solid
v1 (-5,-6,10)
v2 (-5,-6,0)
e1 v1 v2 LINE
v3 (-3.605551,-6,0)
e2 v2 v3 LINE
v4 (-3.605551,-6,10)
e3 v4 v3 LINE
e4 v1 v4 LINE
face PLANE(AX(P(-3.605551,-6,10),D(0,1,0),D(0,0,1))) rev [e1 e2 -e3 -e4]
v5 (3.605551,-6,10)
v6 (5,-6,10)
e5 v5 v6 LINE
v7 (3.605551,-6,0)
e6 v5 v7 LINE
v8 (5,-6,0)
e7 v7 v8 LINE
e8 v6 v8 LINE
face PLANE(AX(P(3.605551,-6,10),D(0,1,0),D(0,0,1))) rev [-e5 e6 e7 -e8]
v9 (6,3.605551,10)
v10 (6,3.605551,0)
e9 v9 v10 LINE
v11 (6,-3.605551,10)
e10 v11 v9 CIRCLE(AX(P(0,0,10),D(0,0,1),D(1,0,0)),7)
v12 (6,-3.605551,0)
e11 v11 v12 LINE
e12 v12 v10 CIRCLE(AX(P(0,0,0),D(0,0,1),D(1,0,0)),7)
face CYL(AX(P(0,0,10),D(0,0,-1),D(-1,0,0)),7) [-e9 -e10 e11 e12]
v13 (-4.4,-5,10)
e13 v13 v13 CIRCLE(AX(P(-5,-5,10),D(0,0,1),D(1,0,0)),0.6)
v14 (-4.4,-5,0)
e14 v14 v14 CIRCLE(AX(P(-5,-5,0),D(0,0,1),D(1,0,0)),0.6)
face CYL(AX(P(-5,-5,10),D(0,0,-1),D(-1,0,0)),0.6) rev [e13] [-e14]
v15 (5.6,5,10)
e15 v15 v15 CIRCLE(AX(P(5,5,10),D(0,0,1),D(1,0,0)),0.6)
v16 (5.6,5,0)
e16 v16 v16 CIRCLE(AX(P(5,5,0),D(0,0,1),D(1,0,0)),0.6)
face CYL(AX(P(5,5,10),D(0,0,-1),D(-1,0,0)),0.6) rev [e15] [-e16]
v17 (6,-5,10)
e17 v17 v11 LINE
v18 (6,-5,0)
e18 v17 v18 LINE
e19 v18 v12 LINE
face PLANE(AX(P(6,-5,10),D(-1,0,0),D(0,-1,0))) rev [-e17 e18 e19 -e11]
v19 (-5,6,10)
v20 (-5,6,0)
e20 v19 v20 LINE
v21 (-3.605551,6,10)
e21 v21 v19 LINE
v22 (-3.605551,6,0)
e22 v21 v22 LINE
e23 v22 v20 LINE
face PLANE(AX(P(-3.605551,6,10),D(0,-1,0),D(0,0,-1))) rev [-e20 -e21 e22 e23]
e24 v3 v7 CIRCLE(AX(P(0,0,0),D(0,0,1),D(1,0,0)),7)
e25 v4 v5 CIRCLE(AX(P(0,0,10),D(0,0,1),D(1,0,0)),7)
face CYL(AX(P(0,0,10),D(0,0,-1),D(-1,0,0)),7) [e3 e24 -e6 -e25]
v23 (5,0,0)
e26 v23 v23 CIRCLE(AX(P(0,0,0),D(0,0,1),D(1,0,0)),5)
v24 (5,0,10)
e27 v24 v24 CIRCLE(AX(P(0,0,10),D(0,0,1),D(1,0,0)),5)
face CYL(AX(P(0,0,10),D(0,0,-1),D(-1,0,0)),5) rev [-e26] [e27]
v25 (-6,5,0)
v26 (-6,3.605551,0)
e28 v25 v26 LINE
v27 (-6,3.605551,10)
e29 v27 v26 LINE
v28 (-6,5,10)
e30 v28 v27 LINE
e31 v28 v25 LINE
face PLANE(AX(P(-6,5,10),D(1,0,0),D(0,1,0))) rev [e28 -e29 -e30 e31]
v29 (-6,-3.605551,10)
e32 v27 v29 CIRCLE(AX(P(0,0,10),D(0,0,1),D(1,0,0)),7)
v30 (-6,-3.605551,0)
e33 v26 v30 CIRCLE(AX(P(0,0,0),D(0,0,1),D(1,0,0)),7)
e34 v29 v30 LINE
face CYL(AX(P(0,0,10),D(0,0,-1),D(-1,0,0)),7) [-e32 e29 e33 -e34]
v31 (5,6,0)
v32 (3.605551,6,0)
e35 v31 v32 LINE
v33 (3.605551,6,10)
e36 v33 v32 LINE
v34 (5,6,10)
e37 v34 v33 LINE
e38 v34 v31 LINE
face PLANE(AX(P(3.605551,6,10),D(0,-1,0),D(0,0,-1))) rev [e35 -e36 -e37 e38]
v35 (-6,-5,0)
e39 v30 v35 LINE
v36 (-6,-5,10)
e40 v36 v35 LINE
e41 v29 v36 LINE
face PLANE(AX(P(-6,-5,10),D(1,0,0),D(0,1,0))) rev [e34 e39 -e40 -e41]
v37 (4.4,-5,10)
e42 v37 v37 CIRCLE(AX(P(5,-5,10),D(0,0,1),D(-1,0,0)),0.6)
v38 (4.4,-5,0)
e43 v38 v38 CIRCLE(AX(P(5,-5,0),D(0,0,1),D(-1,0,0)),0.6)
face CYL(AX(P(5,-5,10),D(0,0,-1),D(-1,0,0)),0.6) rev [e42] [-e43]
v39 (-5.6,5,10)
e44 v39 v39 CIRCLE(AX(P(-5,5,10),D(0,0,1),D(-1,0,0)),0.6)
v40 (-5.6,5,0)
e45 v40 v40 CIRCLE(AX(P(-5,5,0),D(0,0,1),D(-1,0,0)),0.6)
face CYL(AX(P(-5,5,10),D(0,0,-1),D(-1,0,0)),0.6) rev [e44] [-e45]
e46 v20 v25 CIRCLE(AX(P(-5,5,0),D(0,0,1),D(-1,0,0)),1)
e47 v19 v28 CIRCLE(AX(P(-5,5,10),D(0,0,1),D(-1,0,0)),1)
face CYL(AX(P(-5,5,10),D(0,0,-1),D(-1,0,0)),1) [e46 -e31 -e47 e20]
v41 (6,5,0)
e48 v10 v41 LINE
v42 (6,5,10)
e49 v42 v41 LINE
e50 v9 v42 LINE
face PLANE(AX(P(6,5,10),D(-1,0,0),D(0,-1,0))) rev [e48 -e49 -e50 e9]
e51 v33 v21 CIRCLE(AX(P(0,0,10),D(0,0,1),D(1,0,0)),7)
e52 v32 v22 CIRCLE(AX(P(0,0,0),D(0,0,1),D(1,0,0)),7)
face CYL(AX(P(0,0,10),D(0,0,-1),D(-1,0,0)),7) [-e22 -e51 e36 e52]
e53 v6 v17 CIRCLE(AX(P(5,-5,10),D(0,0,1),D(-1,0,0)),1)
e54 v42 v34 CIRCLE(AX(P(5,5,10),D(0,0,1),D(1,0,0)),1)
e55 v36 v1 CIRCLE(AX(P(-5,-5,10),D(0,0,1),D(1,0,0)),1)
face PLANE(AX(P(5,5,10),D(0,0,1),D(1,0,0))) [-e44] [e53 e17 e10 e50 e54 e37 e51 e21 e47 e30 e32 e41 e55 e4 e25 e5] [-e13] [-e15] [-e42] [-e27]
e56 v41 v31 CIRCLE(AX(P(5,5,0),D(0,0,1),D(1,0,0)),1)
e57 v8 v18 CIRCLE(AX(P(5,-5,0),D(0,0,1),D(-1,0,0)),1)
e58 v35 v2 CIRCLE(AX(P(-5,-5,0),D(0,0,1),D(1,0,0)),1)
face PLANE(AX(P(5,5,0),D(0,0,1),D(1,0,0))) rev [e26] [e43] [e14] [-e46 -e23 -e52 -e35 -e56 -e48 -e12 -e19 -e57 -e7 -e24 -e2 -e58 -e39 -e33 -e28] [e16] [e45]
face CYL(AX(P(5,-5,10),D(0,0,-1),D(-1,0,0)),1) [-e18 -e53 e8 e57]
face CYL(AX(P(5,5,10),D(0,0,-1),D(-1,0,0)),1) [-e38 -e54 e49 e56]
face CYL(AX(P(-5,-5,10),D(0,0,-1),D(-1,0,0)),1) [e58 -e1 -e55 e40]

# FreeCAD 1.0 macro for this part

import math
import FreeCAD as App
import Part
import Sketcher

V = App.Vector
Q = App.Units.Quantity

doc = App.newDocument("Part")
body = doc.addObject("PartDesign::Body", "Body")

# Sketch on XY plane
sketch1 = body.newObject("Sketcher::SketchObject", "Sketch")
sketch1.AttachmentSupport = (doc.getObject("XY_Plane"), [""])
sketch1.MapMode = "FlatFace"
sketch1.addGeometry([
    Part.LineSegment(V(5, 6, 0), V(3.605551, 6, 0)),  # 0
    Part.ArcOfCircle(Part.Circle(V(0, 0, 0), V(0, 0, 1), 7), math.radians(58.997281), math.radians(121.002719)),  # 1
    Part.LineSegment(V(-3.605551, 6, 0), V(-5, 6, 0)),  # 2
    Part.ArcOfCircle(Part.Circle(V(-5, 5, 0), V(0, 0, 1), 1), math.radians(90), math.radians(180)),  # 3
    Part.LineSegment(V(-6, 5, 0), V(-6, 3.605551, 0)),  # 4
    Part.ArcOfCircle(Part.Circle(V(0, 0, 0), V(0, 0, 1), 7), math.radians(148.997281), math.radians(211.002719)),  # 5
    Part.LineSegment(V(-6, -3.605551, 0), V(-6, -5, 0)),  # 6
    Part.ArcOfCircle(Part.Circle(V(-5, -5, 0), V(0, 0, 1), 1), math.radians(-180), math.radians(-90)),  # 7
    Part.LineSegment(V(-5, -6, 0), V(-3.605551, -6, 0)),  # 8
    Part.ArcOfCircle(Part.Circle(V(0, 0, 0), V(0, 0, 1), 7), math.radians(-121.002719), math.radians(-58.997281)),  # 9
    Part.LineSegment(V(3.605551, -6, 0), V(5, -6, 0)),  # 10
    Part.ArcOfCircle(Part.Circle(V(5, -5, 0), V(0, 0, 1), 1), math.radians(-90), math.radians(0)),  # 11
    Part.LineSegment(V(6, -5, 0), V(6, -3.605551, 0)),  # 12
    Part.ArcOfCircle(Part.Circle(V(0, 0, 0), V(0, 0, 1), 7), math.radians(-31.002719), math.radians(31.002719)),  # 13
    Part.LineSegment(V(6, 3.605551, 0), V(6, 5, 0)),  # 14
    Part.ArcOfCircle(Part.Circle(V(5, 5, 0), V(0, 0, 1), 1), math.radians(0), math.radians(90)),  # 15
    Part.Circle(V(5, -5, 0), V(0, 0, 1), 0.6),  # 16
    Part.Circle(V(-5, -5, 0), V(0, 0, 1), 0.6),  # 17
    Part.Circle(V(5, 5, 0), V(0, 0, 1), 0.6),  # 18
    Part.Circle(V(0, 0, 0), V(0, 0, 1), 5),  # 19
    Part.Circle(V(-5, 5, 0), V(0, 0, 1), 0.6),  # 20
], False)
sketch1.addConstraint([
    Sketcher.Constraint("Coincident", 0, 2, 1, 1),
    Sketcher.Constraint("Coincident", 1, 2, 2, 1),
    Sketcher.Constraint("Tangent", 2, 2, 3, 1),
    Sketcher.Constraint("Tangent", 3, 2, 4, 1),
    Sketcher.Constraint("Coincident", 4, 2, 5, 1),
    Sketcher.Constraint("Coincident", 5, 2, 6, 1),
    Sketcher.Constraint("Tangent", 6, 2, 7, 1),
    Sketcher.Constraint("Tangent", 7, 2, 8, 1),
    Sketcher.Constraint("Coincident", 8, 2, 9, 1),
    Sketcher.Constraint("Coincident", 9, 2, 10, 1),
    Sketcher.Constraint("Tangent", 10, 2, 11, 1),
    Sketcher.Constraint("Tangent", 11, 2, 12, 1),
    Sketcher.Constraint("Coincident", 12, 2, 13, 1),
    Sketcher.Constraint("Coincident", 13, 2, 14, 1),
    Sketcher.Constraint("Tangent", 14, 2, 15, 1),
    Sketcher.Constraint("Tangent", 15, 2, 0, 1),
    Sketcher.Constraint("Horizontal", 0),
    Sketcher.Constraint("Horizontal", 2),
    Sketcher.Constraint("Vertical", 4),
    Sketcher.Constraint("Vertical", 6),
    Sketcher.Constraint("Horizontal", 8),
    Sketcher.Constraint("Horizontal", 10),
    Sketcher.Constraint("Vertical", 12),
    Sketcher.Constraint("Vertical", 14),
    Sketcher.Constraint("Coincident", 1, 3, -1, 1),
    Sketcher.Constraint("Coincident", 5, 3, -1, 1),
    Sketcher.Constraint("Coincident", 9, 3, -1, 1),
    Sketcher.Constraint("Coincident", 13, 3, -1, 1),
    Sketcher.Constraint("Coincident", 19, 3, -1, 1),
    Sketcher.Constraint("Coincident", 16, 3, 11, 3),
    Sketcher.Constraint("Coincident", 17, 3, 7, 3),
    Sketcher.Constraint("Coincident", 18, 3, 15, 3),
    Sketcher.Constraint("Coincident", 20, 3, 3, 3),
    Sketcher.Constraint("Equal", 1, 5),
    Sketcher.Constraint("Equal", 3, 7),
    Sketcher.Constraint("Equal", 5, 9),
    Sketcher.Constraint("Equal", 7, 11),
    Sketcher.Constraint("Equal", 9, 13),
    Sketcher.Constraint("Equal", 11, 15),
    Sketcher.Constraint("Equal", 16, 17),
    Sketcher.Constraint("Equal", 17, 18),
    Sketcher.Constraint("Equal", 18, 20),
    Sketcher.Constraint("Symmetric", 3, 3, 11, 3, -1, 1),
    Sketcher.Constraint("Symmetric", 7, 3, 15, 3, -1, 1),
    Sketcher.Constraint("Symmetric", 7, 3, 11, 3, -2),
    Sketcher.Constraint("Equal", 10, 4),
    Sketcher.Constraint("Diameter", 19, Q("10 mm")),
    Sketcher.Constraint("Radius", 1, Q("7 mm")),
    Sketcher.Constraint("Radius", 3, Q("1 mm")),
    Sketcher.Constraint("Diameter", 16, Q("1.2 mm")),
    Sketcher.Constraint("DistanceX", 3, 3, -1, 1, Q("5 mm")),
])
pad1 = body.newObject("PartDesign::Pad", "Pad")
pad1.Profile = sketch1
pad1.Length = 10

doc.recompute()
